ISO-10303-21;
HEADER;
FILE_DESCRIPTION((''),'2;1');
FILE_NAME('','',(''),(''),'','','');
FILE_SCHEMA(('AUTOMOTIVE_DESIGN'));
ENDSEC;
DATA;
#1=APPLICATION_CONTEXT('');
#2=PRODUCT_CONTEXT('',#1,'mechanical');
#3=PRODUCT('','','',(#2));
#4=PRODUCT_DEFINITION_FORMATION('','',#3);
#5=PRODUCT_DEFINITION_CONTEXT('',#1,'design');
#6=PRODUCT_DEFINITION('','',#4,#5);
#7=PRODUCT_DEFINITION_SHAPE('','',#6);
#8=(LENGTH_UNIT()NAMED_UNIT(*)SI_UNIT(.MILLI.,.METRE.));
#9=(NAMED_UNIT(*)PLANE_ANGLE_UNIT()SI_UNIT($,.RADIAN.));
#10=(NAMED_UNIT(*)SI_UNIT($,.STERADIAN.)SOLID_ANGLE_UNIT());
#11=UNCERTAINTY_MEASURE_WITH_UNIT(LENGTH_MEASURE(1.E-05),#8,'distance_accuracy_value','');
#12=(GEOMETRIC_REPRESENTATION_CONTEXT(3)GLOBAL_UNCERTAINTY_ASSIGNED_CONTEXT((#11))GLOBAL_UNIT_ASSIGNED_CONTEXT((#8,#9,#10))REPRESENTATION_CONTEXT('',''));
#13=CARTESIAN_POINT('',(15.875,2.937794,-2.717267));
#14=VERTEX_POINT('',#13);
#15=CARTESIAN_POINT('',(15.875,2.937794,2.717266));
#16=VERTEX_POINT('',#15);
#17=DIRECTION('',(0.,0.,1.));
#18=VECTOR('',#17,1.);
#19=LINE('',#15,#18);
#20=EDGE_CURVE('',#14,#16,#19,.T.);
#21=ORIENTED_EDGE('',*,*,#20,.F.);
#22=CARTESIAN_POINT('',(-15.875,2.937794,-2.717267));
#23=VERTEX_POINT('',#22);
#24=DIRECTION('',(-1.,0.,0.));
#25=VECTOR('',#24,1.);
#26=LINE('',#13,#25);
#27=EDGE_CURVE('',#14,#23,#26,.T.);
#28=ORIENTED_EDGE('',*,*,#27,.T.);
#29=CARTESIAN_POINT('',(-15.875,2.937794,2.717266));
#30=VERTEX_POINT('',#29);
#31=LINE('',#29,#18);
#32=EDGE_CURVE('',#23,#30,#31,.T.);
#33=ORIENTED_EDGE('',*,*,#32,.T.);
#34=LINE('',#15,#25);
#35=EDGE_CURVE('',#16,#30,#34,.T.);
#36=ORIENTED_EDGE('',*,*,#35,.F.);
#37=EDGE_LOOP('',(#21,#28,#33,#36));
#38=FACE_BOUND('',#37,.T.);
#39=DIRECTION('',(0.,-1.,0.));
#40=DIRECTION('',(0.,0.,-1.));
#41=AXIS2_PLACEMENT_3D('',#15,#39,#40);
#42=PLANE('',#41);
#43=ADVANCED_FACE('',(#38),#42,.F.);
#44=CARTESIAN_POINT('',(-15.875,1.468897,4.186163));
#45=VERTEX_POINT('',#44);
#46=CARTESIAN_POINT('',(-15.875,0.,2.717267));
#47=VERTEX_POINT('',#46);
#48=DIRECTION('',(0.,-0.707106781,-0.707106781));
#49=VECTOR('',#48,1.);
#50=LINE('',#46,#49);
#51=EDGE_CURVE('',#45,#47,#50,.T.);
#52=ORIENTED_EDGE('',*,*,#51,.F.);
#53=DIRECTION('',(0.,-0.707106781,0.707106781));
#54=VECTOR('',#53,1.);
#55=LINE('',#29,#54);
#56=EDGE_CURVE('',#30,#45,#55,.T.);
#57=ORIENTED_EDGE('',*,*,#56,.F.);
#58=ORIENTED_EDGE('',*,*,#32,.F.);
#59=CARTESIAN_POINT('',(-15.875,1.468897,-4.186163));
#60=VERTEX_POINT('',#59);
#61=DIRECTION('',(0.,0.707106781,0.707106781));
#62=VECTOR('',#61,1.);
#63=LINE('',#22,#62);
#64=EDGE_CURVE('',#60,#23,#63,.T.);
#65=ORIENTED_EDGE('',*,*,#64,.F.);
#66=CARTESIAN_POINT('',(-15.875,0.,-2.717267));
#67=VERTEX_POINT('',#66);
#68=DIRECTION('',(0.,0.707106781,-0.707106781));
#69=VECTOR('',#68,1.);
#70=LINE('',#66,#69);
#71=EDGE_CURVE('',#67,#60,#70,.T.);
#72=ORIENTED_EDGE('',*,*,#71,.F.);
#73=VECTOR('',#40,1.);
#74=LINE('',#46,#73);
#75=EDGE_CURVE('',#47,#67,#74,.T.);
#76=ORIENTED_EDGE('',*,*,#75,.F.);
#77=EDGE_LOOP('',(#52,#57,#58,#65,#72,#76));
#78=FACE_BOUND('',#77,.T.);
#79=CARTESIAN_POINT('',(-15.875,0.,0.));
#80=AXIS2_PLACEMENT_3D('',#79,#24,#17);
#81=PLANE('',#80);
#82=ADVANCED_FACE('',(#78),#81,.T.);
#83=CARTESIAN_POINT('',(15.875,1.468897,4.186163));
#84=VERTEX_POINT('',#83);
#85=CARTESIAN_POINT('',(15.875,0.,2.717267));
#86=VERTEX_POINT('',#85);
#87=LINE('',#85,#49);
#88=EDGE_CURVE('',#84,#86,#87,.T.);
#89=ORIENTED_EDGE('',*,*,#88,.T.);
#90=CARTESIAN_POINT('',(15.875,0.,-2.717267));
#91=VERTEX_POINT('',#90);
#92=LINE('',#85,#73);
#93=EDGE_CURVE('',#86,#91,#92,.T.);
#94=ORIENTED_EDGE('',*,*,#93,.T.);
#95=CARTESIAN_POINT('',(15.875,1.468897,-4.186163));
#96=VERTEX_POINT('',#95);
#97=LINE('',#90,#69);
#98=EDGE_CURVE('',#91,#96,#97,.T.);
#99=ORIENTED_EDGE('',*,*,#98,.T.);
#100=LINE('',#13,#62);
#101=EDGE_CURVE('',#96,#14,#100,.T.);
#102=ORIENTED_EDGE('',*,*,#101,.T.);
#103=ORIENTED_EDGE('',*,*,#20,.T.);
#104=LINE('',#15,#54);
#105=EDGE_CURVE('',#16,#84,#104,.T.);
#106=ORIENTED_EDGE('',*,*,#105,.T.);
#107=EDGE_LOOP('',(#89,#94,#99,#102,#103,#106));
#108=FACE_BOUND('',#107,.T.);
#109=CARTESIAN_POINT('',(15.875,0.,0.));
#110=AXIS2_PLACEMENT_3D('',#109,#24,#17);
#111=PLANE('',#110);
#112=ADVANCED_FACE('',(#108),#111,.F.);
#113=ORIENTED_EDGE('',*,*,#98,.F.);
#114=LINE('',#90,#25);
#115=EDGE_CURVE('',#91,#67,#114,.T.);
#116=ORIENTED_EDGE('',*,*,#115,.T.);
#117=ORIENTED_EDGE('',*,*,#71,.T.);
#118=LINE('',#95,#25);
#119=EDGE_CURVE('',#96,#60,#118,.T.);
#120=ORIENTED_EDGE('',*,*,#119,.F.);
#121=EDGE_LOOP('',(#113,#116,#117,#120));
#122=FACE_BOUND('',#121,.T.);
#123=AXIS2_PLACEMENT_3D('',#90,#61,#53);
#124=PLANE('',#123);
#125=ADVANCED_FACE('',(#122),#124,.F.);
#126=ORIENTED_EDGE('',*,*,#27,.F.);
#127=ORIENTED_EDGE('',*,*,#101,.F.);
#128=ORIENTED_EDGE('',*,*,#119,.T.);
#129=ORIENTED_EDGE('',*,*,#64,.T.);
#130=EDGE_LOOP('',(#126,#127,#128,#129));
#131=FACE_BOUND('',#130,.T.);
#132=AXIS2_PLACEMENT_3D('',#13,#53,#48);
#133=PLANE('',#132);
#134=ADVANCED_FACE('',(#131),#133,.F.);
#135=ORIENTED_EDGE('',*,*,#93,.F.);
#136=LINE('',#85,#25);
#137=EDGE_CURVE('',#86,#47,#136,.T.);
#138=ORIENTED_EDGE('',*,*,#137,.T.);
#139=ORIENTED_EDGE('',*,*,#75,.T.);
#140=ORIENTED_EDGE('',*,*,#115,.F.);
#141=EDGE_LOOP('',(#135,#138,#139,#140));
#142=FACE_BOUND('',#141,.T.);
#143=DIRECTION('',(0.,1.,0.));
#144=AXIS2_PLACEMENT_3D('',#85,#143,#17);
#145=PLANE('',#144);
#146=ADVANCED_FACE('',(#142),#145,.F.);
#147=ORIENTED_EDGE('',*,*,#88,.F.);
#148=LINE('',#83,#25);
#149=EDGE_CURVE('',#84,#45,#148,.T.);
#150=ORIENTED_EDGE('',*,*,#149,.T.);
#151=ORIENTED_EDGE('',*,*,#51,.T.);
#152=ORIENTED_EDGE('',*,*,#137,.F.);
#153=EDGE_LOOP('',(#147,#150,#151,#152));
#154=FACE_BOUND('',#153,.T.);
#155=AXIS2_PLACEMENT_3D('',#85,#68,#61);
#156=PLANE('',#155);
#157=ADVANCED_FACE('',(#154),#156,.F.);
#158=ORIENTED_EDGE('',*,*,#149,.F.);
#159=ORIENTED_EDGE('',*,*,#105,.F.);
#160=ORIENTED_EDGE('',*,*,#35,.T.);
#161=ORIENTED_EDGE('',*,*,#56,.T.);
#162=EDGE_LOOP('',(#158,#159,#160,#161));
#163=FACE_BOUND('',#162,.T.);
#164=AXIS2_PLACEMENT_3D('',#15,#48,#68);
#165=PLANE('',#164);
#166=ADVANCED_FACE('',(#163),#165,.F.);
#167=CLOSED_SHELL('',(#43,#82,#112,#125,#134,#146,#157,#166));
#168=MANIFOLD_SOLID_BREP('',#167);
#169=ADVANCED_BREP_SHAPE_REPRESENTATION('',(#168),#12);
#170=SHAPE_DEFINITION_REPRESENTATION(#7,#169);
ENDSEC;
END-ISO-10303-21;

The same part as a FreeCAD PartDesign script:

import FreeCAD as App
import Part
import Sketcher
from FreeCAD import Vector
Q = App.Units.Quantity


def add_polygon(sketch, points):
    """Adds a closed chain of lines whose ends are joined by coincident constraints."""
    first, n = sketch.GeometryCount, len(points)
    for a, b in zip(points, points[1:] + points[:1]):
        sketch.addGeometry(Part.LineSegment(App.Vector(*a, 0), App.Vector(*b, 0)), False)
    for i in range(n):
        sketch.addConstraint(Sketcher.Constraint("Coincident", first + i, 2, first + (i + 1) % n, 1))

doc = App.newDocument("Part")
body = doc.addObject("PartDesign::Body", "Body")

# Sketch on YZ plane
sketch1 = doc.addObject("Sketcher::SketchObject", "Sketch")
body.addObject(sketch1)
sketch1.AttachmentSupport = (doc.YZ_Plane, [""])
sketch1.MapMode = "FlatFace"
add_polygon(sketch1, [(2.9, 2.7), (1.5, 4.2), (0, 2.7), (0, -2.7), (1.5, -4.2), (2.9, -2.7)])  # lines 0-5
sketch1.addConstraint([
    Sketcher.Constraint("Vertical", 2),
    Sketcher.Constraint("Vertical", 5),
    Sketcher.Constraint("Symmetric", 1, 2, 2, 2, -1, 1),
    Sketcher.Constraint("Symmetric", 0, 2, 3, 2, -1),
    Sketcher.Constraint("Perpendicular", 0, 1),
    Sketcher.Constraint("Perpendicular", 1, 3),
    Sketcher.Constraint("Perpendicular", 3, 4),
    Sketcher.Constraint("Horizontal", 2, 2, 4, 2),
    Sketcher.Constraint("DistanceY", 2, 2, 2, 1, Q("5.434533 mm")),
    Sketcher.Constraint("DistanceY", 2, 2, 0, 2, Q("6.90343 mm")),
])
pad1 = doc.addObject("PartDesign::Pad", "Pad")
body.addObject(pad1)
pad1.Profile = sketch1
pad1.Length = Q("1.25 in")
pad1.Midplane = True

doc.recompute()
